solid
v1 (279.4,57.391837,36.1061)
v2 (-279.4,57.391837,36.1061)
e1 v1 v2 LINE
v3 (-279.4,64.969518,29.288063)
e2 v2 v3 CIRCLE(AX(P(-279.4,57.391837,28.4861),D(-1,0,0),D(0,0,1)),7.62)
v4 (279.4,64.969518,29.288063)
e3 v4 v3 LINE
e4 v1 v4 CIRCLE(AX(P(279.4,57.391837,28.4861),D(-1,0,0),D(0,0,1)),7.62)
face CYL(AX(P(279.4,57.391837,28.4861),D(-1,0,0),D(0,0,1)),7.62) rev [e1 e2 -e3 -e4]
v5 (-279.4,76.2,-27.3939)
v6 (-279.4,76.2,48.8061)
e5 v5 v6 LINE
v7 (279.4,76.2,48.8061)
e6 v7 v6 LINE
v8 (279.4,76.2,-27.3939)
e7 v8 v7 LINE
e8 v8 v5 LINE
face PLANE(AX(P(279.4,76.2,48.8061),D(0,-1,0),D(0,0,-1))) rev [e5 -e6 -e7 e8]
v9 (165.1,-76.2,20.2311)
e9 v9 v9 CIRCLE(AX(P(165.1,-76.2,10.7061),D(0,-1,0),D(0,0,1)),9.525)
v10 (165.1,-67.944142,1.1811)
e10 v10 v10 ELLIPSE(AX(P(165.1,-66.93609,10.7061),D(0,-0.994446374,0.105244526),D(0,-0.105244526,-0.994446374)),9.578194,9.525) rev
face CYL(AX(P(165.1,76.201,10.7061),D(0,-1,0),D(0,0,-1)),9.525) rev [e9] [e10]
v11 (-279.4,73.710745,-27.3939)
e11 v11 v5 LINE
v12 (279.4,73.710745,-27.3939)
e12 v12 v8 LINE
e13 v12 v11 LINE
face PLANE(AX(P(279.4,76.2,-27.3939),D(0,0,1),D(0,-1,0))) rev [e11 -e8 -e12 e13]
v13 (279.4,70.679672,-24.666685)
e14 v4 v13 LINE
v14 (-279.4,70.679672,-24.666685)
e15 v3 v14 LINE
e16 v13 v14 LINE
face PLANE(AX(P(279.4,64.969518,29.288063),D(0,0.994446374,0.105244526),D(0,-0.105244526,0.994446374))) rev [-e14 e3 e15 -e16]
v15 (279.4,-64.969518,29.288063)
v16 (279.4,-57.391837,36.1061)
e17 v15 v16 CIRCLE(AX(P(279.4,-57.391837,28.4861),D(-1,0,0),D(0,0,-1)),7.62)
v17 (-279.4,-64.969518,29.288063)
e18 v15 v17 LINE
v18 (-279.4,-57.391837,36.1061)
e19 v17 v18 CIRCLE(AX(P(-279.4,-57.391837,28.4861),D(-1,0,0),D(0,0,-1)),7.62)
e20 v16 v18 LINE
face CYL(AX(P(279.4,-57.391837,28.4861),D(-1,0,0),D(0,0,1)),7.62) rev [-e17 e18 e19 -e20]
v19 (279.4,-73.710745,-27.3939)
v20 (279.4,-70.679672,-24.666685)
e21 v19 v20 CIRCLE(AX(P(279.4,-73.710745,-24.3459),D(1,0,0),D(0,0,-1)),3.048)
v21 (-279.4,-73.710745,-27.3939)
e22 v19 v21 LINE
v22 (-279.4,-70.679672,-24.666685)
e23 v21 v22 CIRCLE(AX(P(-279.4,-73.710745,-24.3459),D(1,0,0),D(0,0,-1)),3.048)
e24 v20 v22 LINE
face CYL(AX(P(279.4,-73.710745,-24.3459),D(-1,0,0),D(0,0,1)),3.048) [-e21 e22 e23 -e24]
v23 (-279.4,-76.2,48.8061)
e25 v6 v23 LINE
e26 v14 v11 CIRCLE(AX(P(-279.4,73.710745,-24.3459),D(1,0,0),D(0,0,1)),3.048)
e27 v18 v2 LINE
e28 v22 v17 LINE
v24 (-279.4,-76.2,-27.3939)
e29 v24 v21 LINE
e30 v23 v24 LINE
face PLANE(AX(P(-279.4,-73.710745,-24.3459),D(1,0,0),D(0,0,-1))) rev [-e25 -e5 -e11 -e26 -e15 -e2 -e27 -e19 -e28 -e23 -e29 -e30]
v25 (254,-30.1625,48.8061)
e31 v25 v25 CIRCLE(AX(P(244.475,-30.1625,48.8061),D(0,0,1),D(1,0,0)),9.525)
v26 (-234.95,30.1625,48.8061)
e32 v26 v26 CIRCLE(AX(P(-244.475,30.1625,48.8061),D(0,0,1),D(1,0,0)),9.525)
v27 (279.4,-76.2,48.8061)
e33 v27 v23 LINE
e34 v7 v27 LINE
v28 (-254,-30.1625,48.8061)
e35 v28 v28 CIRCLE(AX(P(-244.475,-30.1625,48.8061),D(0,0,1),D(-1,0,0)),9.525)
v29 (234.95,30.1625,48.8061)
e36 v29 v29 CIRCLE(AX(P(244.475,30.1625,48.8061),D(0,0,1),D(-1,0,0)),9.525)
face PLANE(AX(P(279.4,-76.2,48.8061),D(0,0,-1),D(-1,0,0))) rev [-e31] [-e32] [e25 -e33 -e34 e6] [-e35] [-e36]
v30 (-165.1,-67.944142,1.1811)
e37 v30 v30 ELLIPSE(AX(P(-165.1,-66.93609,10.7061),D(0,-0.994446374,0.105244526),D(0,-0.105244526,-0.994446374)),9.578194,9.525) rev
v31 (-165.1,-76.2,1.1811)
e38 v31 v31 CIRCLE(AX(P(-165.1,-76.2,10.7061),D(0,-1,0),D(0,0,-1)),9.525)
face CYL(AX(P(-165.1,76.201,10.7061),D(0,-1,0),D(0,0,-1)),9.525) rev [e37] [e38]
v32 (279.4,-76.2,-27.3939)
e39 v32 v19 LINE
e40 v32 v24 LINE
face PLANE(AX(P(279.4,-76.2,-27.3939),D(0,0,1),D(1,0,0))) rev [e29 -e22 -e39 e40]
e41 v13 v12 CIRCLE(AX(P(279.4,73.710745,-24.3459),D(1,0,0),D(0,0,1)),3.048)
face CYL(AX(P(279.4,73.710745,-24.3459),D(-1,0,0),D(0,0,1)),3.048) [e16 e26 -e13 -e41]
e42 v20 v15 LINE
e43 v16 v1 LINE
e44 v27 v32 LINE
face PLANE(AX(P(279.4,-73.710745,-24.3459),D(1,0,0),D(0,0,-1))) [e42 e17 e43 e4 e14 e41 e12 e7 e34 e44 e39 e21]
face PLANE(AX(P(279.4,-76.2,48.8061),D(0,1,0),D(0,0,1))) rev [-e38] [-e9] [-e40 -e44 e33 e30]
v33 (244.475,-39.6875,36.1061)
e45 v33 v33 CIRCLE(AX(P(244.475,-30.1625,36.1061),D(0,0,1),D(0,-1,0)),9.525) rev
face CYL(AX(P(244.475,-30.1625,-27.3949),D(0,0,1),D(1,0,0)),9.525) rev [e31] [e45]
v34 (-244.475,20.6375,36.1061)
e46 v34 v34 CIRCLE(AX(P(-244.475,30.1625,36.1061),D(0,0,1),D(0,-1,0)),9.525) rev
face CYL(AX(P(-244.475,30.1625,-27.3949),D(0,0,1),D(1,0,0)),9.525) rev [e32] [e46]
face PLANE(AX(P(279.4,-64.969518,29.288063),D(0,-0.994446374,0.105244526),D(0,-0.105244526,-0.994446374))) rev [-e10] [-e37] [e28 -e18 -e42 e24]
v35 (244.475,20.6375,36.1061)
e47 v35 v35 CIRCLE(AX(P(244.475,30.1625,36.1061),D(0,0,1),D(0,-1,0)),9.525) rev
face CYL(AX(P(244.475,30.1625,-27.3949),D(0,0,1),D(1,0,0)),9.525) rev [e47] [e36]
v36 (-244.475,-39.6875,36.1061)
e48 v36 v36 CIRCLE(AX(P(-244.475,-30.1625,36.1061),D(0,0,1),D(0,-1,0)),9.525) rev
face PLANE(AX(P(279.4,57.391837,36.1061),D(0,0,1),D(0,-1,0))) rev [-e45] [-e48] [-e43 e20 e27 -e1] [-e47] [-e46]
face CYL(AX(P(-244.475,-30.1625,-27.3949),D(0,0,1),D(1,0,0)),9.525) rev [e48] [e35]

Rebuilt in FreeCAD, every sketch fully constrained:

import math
import FreeCAD as App
import Part
import Sketcher
Q = App.Units.Quantity

doc = App.newDocument("Part")
body = doc.addObject("PartDesign::Body", "Body")

sketch1 = body.newObject("Sketcher::SketchObject", "Sketch")
sketch1.AttachmentSupport = (doc.getObject("YZ_Plane"), [""])
sketch1.MapMode = "FlatFace"
sketch1.addGeometry(Part.LineSegment(App.Vector(76.2, 48.8061, 0), App.Vector(-76.2, 48.8061, 0)), False)
sketch1.addGeometry(Part.LineSegment(App.Vector(-76.2, 48.8061, 0), App.Vector(-76.2, -27.3939, 0)), False)
sketch1.addGeometry(Part.LineSegment(App.Vector(-76.2, -27.3939, 0), App.Vector(-73.710745, -27.3939, 0)), False)
sketch1.addGeometry(Part.ArcOfCircle(Part.Circle(App.Vector(-73.710745, -24.3459, 0), App.Vector(0, 0, 1), 3.048), math.radians(-90), math.radians(-6.041255)), False)
sketch1.addGeometry(Part.LineSegment(App.Vector(-70.679672, -24.666685, 0), App.Vector(-64.969518, 29.288063, 0)), False)
sketch1.addGeometry(Part.ArcOfCircle(Part.Circle(App.Vector(-57.391837, 28.4861, 0), App.Vector(0, 0, 1), 7.62), math.radians(90), math.radians(173.958745)), False)
sketch1.addGeometry(Part.LineSegment(App.Vector(-57.391837, 36.1061, 0), App.Vector(57.391837, 36.1061, 0)), False)
sketch1.addGeometry(Part.ArcOfCircle(Part.Circle(App.Vector(57.391837, 28.4861, 0), App.Vector(0, 0, 1), 7.62), math.radians(6.041255), math.radians(90)), False)
sketch1.addGeometry(Part.LineSegment(App.Vector(64.969518, 29.288063, 0), App.Vector(70.679672, -24.666685, 0)), False)
sketch1.addGeometry(Part.ArcOfCircle(Part.Circle(App.Vector(73.710745, -24.3459, 0), App.Vector(0, 0, 1), 3.048), math.radians(-173.958745), math.radians(-90)), False)
sketch1.addGeometry(Part.LineSegment(App.Vector(73.710745, -27.3939, 0), App.Vector(76.2, -27.3939, 0)), False)
sketch1.addGeometry(Part.LineSegment(App.Vector(76.2, -27.3939, 0), App.Vector(76.2, 48.8061, 0)), False)
sketch1.addConstraint(Sketcher.Constraint("Coincident", 0, 2, 1, 1))
sketch1.addConstraint(Sketcher.Constraint("Coincident", 1, 2, 2, 1))
sketch1.addConstraint(Sketcher.Constraint("Tangent", 2, 2, 3, 1))
sketch1.addConstraint(Sketcher.Constraint("Tangent", 3, 2, 4, 1))
sketch1.addConstraint(Sketcher.Constraint("Tangent", 4, 2, 5, 2))
sketch1.addConstraint(Sketcher.Constraint("Tangent", 5, 1, 6, 1))
sketch1.addConstraint(Sketcher.Constraint("Tangent", 6, 2, 7, 2))
sketch1.addConstraint(Sketcher.Constraint("Tangent", 7, 1, 8, 1))
sketch1.addConstraint(Sketcher.Constraint("Tangent", 8, 2, 9, 1))
sketch1.addConstraint(Sketcher.Constraint("Tangent", 9, 2, 10, 1))
sketch1.addConstraint(Sketcher.Constraint("Coincident", 10, 2, 11, 1))
sketch1.addConstraint(Sketcher.Constraint("Coincident", 11, 2, 0, 1))
sketch1.addConstraint(Sketcher.Constraint("Horizontal", 0))
sketch1.addConstraint(Sketcher.Constraint("Vertical", 1))
sketch1.addConstraint(Sketcher.Constraint("Horizontal", 2))
sketch1.addConstraint(Sketcher.Constraint("Horizontal", 6))
sketch1.addConstraint(Sketcher.Constraint("Horizontal", 10))
sketch1.addConstraint(Sketcher.Constraint("Vertical", 11))
sketch1.addConstraint(Sketcher.Constraint("Equal", 5, 7))
sketch1.addConstraint(Sketcher.Constraint("Equal", 3, 9))
sketch1.addConstraint(Sketcher.Constraint("Symmetric", 3, 3, 9, 3, -2))
sketch1.addConstraint(Sketcher.Constraint("Horizontal", 4, 2, 7, 1))
sketch1.addConstraint(Sketcher.Constraint("Equal", 2, 10))
sketch1.addConstraint(Sketcher.Constraint("Radius", 5, Q("0.3 in")))
sketch1.addConstraint(Sketcher.Constraint("DistanceX", 0, 2, 0, 1, Q("6 in")))
sketch1.addConstraint(Sketcher.Constraint("DistanceY", 1, 2, 1, 1, Q("3 in")))
sketch1.addConstraint(Sketcher.Constraint("Radius", 3, Q("0.12 in")))
sketch1.addConstraint(Sketcher.Constraint("DistanceY", 5, 3, 0, 2, Q("0.8 in")))
sketch1.addConstraint(Sketcher.Constraint("DistanceY", 3, 3, -1, 1, Q("0.9585 in")))
sketch1.addConstraint(Sketcher.Constraint("DistanceX", 2, 1, 2, 2, 2.489255))
sketch1.addConstraint(Sketcher.Constraint("DistanceX", 6, 1, 6, 2, 114.783673))
pad1 = body.newObject("PartDesign::Pad", "Pad")
pad1.Profile = sketch1
pad1.Length = Q("22 in")
pad1.Midplane = True

sketch2 = body.newObject("Sketcher::SketchObject", "Sketch001")
sketch2.AttachmentSupport = (doc.getObject("XY_Plane"), [""])
sketch2.MapMode = "FlatFace"
sketch2.AttachmentOffset = App.Placement(App.Vector(0, 0, 1.9215 * 25.4), App.Rotation())
sketch2.addGeometry(Part.Circle(App.Vector(-244.475, 30.1625, 0), App.Vector(0, 0, 1), 9.525), False)
sketch2.addConstraint(Sketcher.Constraint("Diameter", 0, Q("0.75 in")))
sketch2.addConstraint(Sketcher.Constraint("DistanceX", 0, 3, -1, 1, Q("9.625 in")))
sketch2.addConstraint(Sketcher.Constraint("DistanceY", -1, 1, 0, 3, Q("1.1875 in")))
pocket1 = body.newObject("PartDesign::Pocket", "Pocket")
pocket1.Profile = sketch2
pocket1.Type = "UpToFirst"

sketch3 = body.newObject("Sketcher::SketchObject", "Sketch002")
sketch3.AttachmentSupport = (doc.getObject("XY_Plane"), [""])
sketch3.MapMode = "FlatFace"
sketch3.AttachmentOffset = App.Placement(App.Vector(0, 0, 1.9215 * 25.4), App.Rotation())
sketch3.addGeometry(Part.Circle(App.Vector(-244.475, -30.1625, 0), App.Vector(0, 0, 1), 9.525), False)
sketch3.addConstraint(Sketcher.Constraint("Diameter", 0, Q("0.75 in")))
sketch3.addConstraint(Sketcher.Constraint("DistanceX", 0, 3, -1, 1, Q("9.625 in")))
sketch3.addConstraint(Sketcher.Constraint("DistanceY", 0, 3, -1, 1, Q("1.1875 in")))
pocket2 = body.newObject("PartDesign::Pocket", "Pocket001")
pocket2.Profile = sketch3
pocket2.Type = "UpToFirst"

sketch4 = body.newObject("Sketcher::SketchObject", "Sketch003")
sketch4.AttachmentSupport = (doc.getObject("XY_Plane"), [""])
sketch4.MapMode = "FlatFace"
sketch4.AttachmentOffset = App.Placement(App.Vector(0, 0, 1.9215 * 25.4), App.Rotation())
sketch4.addGeometry(Part.Circle(App.Vector(244.475, -30.1625, 0), App.Vector(0, 0, 1), 9.525), False)
sketch4.addConstraint(Sketcher.Constraint("Diameter", 0, Q("0.75 in")))
sketch4.addConstraint(Sketcher.Constraint("DistanceX", -1, 1, 0, 3, Q("9.625 in")))
sketch4.addConstraint(Sketcher.Constraint("DistanceY", 0, 3, -1, 1, Q("1.1875 in")))
pocket3 = body.newObject("PartDesign::Pocket", "Pocket002")
pocket3.Profile = sketch4
pocket3.Type = "UpToFirst"

sketch5 = body.newObject("Sketcher::SketchObject", "Sketch004")
sketch5.AttachmentSupport = (doc.getObject("XY_Plane"), [""])
sketch5.MapMode = "FlatFace"
sketch5.AttachmentOffset = App.Placement(App.Vector(0, 0, 1.9215 * 25.4), App.Rotation())
sketch5.addGeometry(Part.Circle(App.Vector(244.475, 30.1625, 0), App.Vector(0, 0, 1), 9.525), False)
sketch5.addConstraint(Sketcher.Constraint("Diameter", 0, Q("0.75 in")))
sketch5.addConstraint(Sketcher.Constraint("DistanceX", -1, 1, 0, 3, Q("9.625 in")))
sketch5.addConstraint(Sketcher.Constraint("DistanceY", -1, 1, 0, 3, Q("1.1875 in")))
pocket4 = body.newObject("PartDesign::Pocket", "Pocket003")
pocket4.Profile = sketch5
pocket4.Type = "UpToFirst"

sketch6 = body.newObject("Sketcher::SketchObject", "Sketch005")
sketch6.AttachmentSupport = (doc.getObject("XZ_Plane"), [""])
sketch6.MapMode = "FlatFace"
sketch6.AttachmentOffset = App.Placement(App.Vector(0, 0, 3 * 25.4), App.Rotation())
sketch6.addGeometry(Part.Circle(App.Vector(-165.1, 10.7061, 0), App.Vector(0, 0, 1), 9.525), False)
sketch6.addConstraint(Sketcher.Constraint("Diameter", 0, Q("0.75 in")))
sketch6.addConstraint(Sketcher.Constraint("DistanceX", 0, 3, -1, 1, Q("6.5 in")))
sketch6.addConstraint(Sketcher.Constraint("DistanceY", -1, 1, 0, 3, Q("0.4215 in")))
pocket5 = body.newObject("PartDesign::Pocket", "Pocket004")
pocket5.Profile = sketch6
pocket5.Type = "UpToFirst"

sketch7 = body.newObject("Sketcher::SketchObject", "Sketch006")
sketch7.AttachmentSupport = (doc.getObject("XZ_Plane"), [""])
sketch7.MapMode = "FlatFace"
sketch7.AttachmentOffset = App.Placement(App.Vector(0, 0, 3 * 25.4), App.Rotation())
sketch7.addGeometry(Part.Circle(App.Vector(165.1, 10.7061, 0), App.Vector(0, 0, 1), 9.525), False)
sketch7.addConstraint(Sketcher.Constraint("Diameter", 0, Q("0.75 in")))
sketch7.addConstraint(Sketcher.Constraint("DistanceX", -1, 1, 0, 3, Q("6.5 in")))
sketch7.addConstraint(Sketcher.Constraint("DistanceY", -1, 1, 0, 3, Q("0.4215 in")))
pocket6 = body.newObject("PartDesign::Pocket", "Pocket005")
pocket6.Profile = sketch7
pocket6.Type = "UpToFirst"

doc.recompute()
